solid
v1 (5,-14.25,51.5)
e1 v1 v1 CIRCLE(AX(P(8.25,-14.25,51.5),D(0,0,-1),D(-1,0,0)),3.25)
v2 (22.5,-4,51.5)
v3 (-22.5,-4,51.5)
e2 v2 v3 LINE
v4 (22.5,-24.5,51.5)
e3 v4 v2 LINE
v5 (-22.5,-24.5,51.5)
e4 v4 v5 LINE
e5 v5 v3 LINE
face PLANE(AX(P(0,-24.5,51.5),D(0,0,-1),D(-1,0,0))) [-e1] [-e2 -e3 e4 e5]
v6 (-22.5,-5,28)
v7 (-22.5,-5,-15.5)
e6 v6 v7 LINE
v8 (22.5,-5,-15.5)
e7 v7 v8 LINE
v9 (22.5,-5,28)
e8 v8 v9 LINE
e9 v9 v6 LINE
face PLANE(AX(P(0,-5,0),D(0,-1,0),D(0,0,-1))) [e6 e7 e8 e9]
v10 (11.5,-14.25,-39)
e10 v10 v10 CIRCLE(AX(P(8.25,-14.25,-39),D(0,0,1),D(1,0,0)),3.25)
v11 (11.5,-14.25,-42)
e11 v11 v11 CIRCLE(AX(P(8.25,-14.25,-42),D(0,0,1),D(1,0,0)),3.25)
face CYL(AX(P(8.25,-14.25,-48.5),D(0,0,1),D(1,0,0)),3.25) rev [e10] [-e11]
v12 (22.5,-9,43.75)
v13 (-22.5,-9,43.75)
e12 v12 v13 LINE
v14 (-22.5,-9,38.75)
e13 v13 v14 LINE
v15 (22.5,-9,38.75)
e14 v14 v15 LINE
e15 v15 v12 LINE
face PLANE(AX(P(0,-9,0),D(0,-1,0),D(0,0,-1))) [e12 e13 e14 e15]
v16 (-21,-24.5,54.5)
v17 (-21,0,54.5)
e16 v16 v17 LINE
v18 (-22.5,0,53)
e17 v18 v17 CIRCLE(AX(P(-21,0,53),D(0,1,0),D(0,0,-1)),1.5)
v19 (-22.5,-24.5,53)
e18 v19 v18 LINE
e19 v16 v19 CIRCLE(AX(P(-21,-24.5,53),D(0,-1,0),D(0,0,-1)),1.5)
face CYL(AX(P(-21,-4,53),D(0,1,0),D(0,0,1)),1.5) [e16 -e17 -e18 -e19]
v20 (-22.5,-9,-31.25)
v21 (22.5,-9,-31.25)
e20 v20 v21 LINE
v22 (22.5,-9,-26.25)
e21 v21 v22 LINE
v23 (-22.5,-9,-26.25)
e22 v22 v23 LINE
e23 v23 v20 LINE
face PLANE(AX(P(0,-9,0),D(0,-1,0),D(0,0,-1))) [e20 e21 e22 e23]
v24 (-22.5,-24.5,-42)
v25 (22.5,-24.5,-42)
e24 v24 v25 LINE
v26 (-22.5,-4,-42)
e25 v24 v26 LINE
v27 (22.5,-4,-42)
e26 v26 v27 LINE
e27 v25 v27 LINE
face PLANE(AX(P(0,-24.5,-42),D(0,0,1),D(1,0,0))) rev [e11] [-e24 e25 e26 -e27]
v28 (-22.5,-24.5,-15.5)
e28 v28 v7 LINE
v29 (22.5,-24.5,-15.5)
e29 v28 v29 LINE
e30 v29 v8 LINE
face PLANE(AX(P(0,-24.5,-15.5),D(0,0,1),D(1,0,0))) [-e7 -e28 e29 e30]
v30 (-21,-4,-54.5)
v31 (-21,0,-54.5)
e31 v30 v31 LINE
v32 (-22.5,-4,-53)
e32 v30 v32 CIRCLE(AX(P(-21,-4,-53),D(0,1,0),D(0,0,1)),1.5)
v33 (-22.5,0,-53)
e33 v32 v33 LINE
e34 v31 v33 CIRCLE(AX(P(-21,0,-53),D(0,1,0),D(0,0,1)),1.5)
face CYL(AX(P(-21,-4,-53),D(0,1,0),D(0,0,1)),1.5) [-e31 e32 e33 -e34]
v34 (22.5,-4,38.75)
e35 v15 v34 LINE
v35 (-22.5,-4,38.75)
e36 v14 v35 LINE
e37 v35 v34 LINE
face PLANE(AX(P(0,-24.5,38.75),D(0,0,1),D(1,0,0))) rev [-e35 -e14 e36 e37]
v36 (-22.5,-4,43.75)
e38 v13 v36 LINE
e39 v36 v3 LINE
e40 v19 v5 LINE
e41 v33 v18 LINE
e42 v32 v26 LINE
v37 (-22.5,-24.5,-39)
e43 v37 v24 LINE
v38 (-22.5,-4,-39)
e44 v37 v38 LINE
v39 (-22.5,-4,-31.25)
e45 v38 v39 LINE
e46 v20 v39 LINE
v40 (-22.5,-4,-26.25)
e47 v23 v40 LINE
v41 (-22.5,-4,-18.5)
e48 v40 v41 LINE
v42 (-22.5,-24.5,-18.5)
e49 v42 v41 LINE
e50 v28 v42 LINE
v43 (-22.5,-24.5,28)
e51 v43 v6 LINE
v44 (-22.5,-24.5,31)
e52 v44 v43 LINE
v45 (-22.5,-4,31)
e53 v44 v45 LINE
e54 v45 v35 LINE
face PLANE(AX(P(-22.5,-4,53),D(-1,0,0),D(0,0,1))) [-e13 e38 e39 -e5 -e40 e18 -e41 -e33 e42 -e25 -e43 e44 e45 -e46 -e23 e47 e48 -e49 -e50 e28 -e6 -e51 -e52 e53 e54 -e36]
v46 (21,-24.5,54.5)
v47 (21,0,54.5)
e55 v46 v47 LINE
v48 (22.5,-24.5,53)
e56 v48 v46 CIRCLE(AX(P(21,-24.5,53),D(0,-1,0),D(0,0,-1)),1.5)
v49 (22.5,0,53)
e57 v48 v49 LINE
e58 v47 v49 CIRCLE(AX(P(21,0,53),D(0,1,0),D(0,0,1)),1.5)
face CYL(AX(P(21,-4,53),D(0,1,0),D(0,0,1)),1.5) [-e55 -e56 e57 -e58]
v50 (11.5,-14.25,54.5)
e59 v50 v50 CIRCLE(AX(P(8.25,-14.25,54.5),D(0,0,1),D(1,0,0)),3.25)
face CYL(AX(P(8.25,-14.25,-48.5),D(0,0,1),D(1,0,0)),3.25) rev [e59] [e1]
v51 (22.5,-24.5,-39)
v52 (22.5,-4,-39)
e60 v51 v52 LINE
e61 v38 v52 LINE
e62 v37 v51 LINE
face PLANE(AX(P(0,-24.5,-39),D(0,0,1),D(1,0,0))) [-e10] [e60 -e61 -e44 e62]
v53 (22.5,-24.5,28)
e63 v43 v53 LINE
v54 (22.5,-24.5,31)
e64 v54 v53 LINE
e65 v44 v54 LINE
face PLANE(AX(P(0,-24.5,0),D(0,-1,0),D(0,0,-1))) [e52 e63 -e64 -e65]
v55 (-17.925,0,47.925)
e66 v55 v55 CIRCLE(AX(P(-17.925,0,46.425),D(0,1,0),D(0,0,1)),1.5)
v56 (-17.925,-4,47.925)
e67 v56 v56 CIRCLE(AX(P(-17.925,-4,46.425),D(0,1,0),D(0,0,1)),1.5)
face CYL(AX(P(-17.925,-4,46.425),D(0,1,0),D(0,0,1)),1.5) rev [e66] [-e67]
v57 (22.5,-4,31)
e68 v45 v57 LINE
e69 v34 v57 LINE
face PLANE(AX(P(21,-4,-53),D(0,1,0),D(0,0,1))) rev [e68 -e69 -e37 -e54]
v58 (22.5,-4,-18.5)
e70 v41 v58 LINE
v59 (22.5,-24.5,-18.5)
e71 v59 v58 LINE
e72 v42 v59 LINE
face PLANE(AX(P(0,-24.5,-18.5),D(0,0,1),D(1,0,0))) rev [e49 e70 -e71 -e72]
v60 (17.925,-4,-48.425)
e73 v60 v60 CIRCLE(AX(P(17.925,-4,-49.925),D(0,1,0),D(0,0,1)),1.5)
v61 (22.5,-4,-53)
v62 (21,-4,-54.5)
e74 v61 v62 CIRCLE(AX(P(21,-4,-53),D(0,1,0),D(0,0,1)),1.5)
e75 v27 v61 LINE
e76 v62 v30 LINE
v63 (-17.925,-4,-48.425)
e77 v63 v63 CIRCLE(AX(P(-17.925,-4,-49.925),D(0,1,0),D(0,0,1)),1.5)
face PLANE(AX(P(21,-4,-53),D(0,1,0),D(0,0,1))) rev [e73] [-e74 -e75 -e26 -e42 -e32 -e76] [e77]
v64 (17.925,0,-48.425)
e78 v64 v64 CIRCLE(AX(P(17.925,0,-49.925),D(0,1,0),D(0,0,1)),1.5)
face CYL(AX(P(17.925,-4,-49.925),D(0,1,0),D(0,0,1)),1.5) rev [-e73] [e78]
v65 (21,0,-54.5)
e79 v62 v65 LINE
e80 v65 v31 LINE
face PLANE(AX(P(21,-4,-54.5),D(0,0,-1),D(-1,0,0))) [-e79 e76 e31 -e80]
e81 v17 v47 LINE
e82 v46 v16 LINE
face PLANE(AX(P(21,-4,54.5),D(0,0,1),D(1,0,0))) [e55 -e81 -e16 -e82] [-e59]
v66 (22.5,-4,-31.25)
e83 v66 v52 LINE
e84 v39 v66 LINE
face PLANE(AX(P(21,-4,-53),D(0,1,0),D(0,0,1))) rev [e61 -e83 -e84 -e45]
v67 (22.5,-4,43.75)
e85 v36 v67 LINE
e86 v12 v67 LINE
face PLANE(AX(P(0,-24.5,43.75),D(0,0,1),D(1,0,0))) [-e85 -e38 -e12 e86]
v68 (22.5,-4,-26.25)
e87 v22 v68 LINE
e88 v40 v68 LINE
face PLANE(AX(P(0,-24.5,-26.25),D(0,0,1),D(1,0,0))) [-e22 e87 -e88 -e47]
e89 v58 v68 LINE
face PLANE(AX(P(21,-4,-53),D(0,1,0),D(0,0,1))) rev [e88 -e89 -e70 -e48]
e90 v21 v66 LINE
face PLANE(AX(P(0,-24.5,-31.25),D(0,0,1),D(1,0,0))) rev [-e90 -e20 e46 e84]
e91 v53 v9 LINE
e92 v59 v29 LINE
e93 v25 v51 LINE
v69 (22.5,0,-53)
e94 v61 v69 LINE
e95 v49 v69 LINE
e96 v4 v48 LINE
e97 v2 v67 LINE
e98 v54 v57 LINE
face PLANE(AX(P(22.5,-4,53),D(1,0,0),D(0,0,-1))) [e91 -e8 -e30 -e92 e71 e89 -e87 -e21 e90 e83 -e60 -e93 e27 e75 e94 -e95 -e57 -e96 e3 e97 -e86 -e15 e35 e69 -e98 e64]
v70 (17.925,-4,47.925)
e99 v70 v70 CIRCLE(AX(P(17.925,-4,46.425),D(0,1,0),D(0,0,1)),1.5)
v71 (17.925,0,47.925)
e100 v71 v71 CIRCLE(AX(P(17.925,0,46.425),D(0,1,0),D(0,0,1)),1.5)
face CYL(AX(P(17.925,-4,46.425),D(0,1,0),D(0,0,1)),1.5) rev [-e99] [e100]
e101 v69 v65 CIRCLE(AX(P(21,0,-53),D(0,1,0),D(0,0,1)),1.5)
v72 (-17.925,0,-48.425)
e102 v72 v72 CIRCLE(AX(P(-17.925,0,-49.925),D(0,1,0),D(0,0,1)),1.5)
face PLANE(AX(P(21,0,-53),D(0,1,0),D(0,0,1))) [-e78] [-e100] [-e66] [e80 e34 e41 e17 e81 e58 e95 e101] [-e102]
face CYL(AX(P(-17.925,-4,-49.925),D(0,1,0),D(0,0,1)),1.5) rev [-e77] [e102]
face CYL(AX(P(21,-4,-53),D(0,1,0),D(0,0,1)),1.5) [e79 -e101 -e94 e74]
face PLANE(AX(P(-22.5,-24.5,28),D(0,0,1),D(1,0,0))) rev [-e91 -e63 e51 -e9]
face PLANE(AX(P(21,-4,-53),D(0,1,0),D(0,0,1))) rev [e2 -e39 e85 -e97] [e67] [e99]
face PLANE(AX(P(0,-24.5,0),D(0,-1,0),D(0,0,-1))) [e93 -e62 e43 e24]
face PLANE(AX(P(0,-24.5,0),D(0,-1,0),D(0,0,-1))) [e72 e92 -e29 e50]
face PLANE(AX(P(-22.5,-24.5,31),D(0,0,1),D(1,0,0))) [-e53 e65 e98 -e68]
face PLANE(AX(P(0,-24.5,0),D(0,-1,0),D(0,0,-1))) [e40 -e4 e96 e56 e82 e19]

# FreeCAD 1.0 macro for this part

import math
import FreeCAD as App
import Part
import Sketcher
from FreeCAD import Vector
Q = App.Units.Quantity

doc = App.newDocument("Part")
body = doc.addObject("PartDesign::Body", "Body")

# Sketch on XZ plane
sketch1 = doc.addObject("Sketcher::SketchObject", "Sketch")
body.addObject(sketch1)
sketch1.AttachmentSupport = (doc.XZ_Plane, [""])
sketch1.MapMode = "FlatFace"
sketch1.addGeometry([
    Part.LineSegment(Vector(-21, 54.5, 0), Vector(21, 54.5, 0)),  # 0
    Part.ArcOfCircle(Part.Circle(Vector(21, 53, 0), Vector(0, 0, 1), 1.5), math.radians(0), math.radians(90)),  # 1
    Part.LineSegment(Vector(22.5, 53, 0), Vector(22.5, -53, 0)),  # 2
    Part.ArcOfCircle(Part.Circle(Vector(21, -53, 0), Vector(0, 0, 1), 1.5), math.radians(-90), math.radians(0)),  # 3
    Part.LineSegment(Vector(21, -54.5, 0), Vector(-21, -54.5, 0)),  # 4
    Part.ArcOfCircle(Part.Circle(Vector(-21, -53, 0), Vector(0, 0, 1), 1.5), math.radians(180), math.radians(270)),  # 5
    Part.LineSegment(Vector(-22.5, -53, 0), Vector(-22.5, 53, 0)),  # 6
    Part.ArcOfCircle(Part.Circle(Vector(-21, 53, 0), Vector(0, 0, 1), 1.5), math.radians(90), math.radians(180)),  # 7
    Part.Circle(Vector(17.9, 46.4, 0), Vector(0, 0, 1), 1.5),  # 8
    Part.Circle(Vector(-17.9, 46.4, 0), Vector(0, 0, 1), 1.5),  # 9
    Part.Circle(Vector(17.9, -49.9, 0), Vector(0, 0, 1), 1.5),  # 10
    Part.Circle(Vector(-17.9, -49.9, 0), Vector(0, 0, 1), 1.5),  # 11
], False)
sketch1.addConstraint([
    Sketcher.Constraint("Tangent", 0, 2, 1, 2),
    Sketcher.Constraint("Tangent", 1, 1, 2, 1),
    Sketcher.Constraint("Tangent", 2, 2, 3, 2),
    Sketcher.Constraint("Tangent", 3, 1, 4, 1),
    Sketcher.Constraint("Tangent", 4, 2, 5, 2),
    Sketcher.Constraint("Tangent", 5, 1, 6, 1),
    Sketcher.Constraint("Tangent", 6, 2, 7, 2),
    Sketcher.Constraint("Tangent", 7, 1, 0, 1),
    Sketcher.Constraint("Horizontal", 0),
    Sketcher.Constraint("Vertical", 2),
    Sketcher.Constraint("Horizontal", 4),
    Sketcher.Constraint("Vertical", 6),
    Sketcher.Constraint("Equal", 1, 3),
    Sketcher.Constraint("Equal", 3, 5),
    Sketcher.Constraint("Equal", 5, 7),
    Sketcher.Constraint("Equal", 7, 8),
    Sketcher.Constraint("Equal", 8, 9),
    Sketcher.Constraint("Equal", 9, 10),
    Sketcher.Constraint("Equal", 10, 11),
    Sketcher.Constraint("Symmetric", 1, 3, 5, 3, -1, 1),
    Sketcher.Constraint("Symmetric", 8, 3, 9, 3, -2),
    Sketcher.Constraint("Symmetric", 10, 3, 11, 3, -2),
    Sketcher.Constraint("Vertical", 8, 3, 10, 3),
    Sketcher.Constraint("Diameter", 8, Q("3 mm")),
    Sketcher.Constraint("DistanceX", 0, 1, 0, 2, Q("42 mm")),
    Sketcher.Constraint("DistanceY", 2, 2, 2, 1, Q("106 mm")),
    Sketcher.Constraint("DistanceX", 9, 3, 8, 3, Q("35.85 mm")),
    Sketcher.Constraint("DistanceY", 10, 3, 8, 3, Q("96.35 mm")),
    Sketcher.Constraint("DistanceY", -1, 1, 8, 3, Q("46.425 mm")),
])
pad1 = doc.addObject("PartDesign::Pad", "Pad")
body.addObject(pad1)
pad1.Profile = sketch1
pad1.Length = 4

# Sketch on XZ plane
sketch2 = doc.addObject("Sketcher::SketchObject", "Sketch001")
body.addObject(sketch2)
sketch2.AttachmentSupport = (doc.XZ_Plane, [""])
sketch2.MapMode = "FlatFace"
sketch2.AttachmentOffset = App.Placement(Vector(0, 0, 4), App.Rotation())
sketch2.addGeometry([
    Part.LineSegment(Vector(-22.5, -15.5, 0), Vector(-22.5, -18.5, 0)),  # 0
    Part.LineSegment(Vector(-22.5, -18.5, 0), Vector(22.5, -18.5, 0)),  # 1
    Part.LineSegment(Vector(22.5, -18.5, 0), Vector(22.5, -15.5, 0)),  # 2
    Part.LineSegment(Vector(22.5, -15.5, 0), Vector(-22.5, -15.5, 0)),  # 3
    Part.LineSegment(Vector(-22.5, -26.2, 0), Vector(-22.5, -31.2, 0)),  # 4
    Part.LineSegment(Vector(-22.5, -31.2, 0), Vector(22.5, -31.2, 0)),  # 5
    Part.LineSegment(Vector(22.5, -31.2, 0), Vector(22.5, -26.2, 0)),  # 6
    Part.LineSegment(Vector(22.5, -26.2, 0), Vector(-22.5, -26.2, 0)),  # 7
    Part.LineSegment(Vector(-22.5, -39, 0), Vector(-22.5, -42, 0)),  # 8
    Part.LineSegment(Vector(-22.5, -42, 0), Vector(22.5, -42, 0)),  # 9
    Part.LineSegment(Vector(22.5, -42, 0), Vector(22.5, -39, 0)),  # 10
    Part.LineSegment(Vector(22.5, -39, 0), Vector(-22.5, -39, 0)),  # 11
    Part.LineSegment(Vector(-22.5, 43.8, 0), Vector(-22.5, 38.8, 0)),  # 12
    Part.LineSegment(Vector(-22.5, 38.8, 0), Vector(22.5, 38.8, 0)),  # 13
    Part.LineSegment(Vector(22.5, 38.8, 0), Vector(22.5, 43.8, 0)),  # 14
    Part.LineSegment(Vector(22.5, 43.8, 0), Vector(-22.5, 43.8, 0)),  # 15
    Part.LineSegment(Vector(-22.5, 51.5, 0), Vector(22.5, 51.5, 0)),  # 16
    Part.LineSegment(Vector(22.5, 51.5, 0), Vector(22.5, 53, 0)),  # 17
    Part.ArcOfCircle(Part.Circle(Vector(21, 53, 0), Vector(0, 0, 1), 1.5), math.radians(0), math.radians(90)),  # 18
    Part.LineSegment(Vector(21, 54.5, 0), Vector(-21, 54.5, 0)),  # 19
    Part.ArcOfCircle(Part.Circle(Vector(-21, 53, 0), Vector(0, 0, 1), 1.5), math.radians(90), math.radians(180)),  # 20
    Part.LineSegment(Vector(-22.5, 53, 0), Vector(-22.5, 51.5, 0)),  # 21
    Part.LineSegment(Vector(-22.5, 31, 0), Vector(-22.5, 28, 0)),  # 22
    Part.LineSegment(Vector(-22.5, 28, 0), Vector(22.5, 28, 0)),  # 23
    Part.LineSegment(Vector(22.5, 28, 0), Vector(22.5, 31, 0)),  # 24
    Part.LineSegment(Vector(22.5, 31, 0), Vector(-22.5, 31, 0)),  # 25
], False)
sketch2.addConstraint([
    Sketcher.Constraint("Coincident", 0, 2, 1, 1),
    Sketcher.Constraint("Coincident", 1, 2, 2, 1),
    Sketcher.Constraint("Coincident", 2, 2, 3, 1),
    Sketcher.Constraint("Coincident", 3, 2, 0, 1),
    Sketcher.Constraint("Coincident", 4, 2, 5, 1),
    Sketcher.Constraint("Coincident", 5, 2, 6, 1),
    Sketcher.Constraint("Coincident", 6, 2, 7, 1),
    Sketcher.Constraint("Coincident", 7, 2, 4, 1),
    Sketcher.Constraint("Coincident", 8, 2, 9, 1),
    Sketcher.Constraint("Coincident", 9, 2, 10, 1),
    Sketcher.Constraint("Coincident", 10, 2, 11, 1),
    Sketcher.Constraint("Coincident", 11, 2, 8, 1),
    Sketcher.Constraint("Coincident", 12, 2, 13, 1),
    Sketcher.Constraint("Coincident", 13, 2, 14, 1),
    Sketcher.Constraint("Coincident", 14, 2, 15, 1),
    Sketcher.Constraint("Coincident", 15, 2, 12, 1),
    Sketcher.Constraint("Coincident", 16, 2, 17, 1),
    Sketcher.Constraint("Tangent", 17, 2, 18, 1),
    Sketcher.Constraint("Tangent", 18, 2, 19, 1),
    Sketcher.Constraint("Tangent", 19, 2, 20, 1),
    Sketcher.Constraint("Tangent", 20, 2, 21, 1),
    Sketcher.Constraint("Coincident", 21, 2, 16, 1),
    Sketcher.Constraint("Coincident", 22, 2, 23, 1),
    Sketcher.Constraint("Coincident", 23, 2, 24, 1),
    Sketcher.Constraint("Coincident", 24, 2, 25, 1),
    Sketcher.Constraint("Coincident", 25, 2, 22, 1),
    Sketcher.Constraint("Vertical", 0),
    Sketcher.Constraint("Horizontal", 1),
    Sketcher.Constraint("Vertical", 2),
    Sketcher.Constraint("Horizontal", 3),
    Sketcher.Constraint("Vertical", 4),
    Sketcher.Constraint("Horizontal", 5),
    Sketcher.Constraint("Vertical", 6),
    Sketcher.Constraint("Horizontal", 7),
    Sketcher.Constraint("Vertical", 8),
    Sketcher.Constraint("Horizontal", 9),
    Sketcher.Constraint("Vertical", 10),
    Sketcher.Constraint("Horizontal", 11),
    Sketcher.Constraint("Vertical", 12),
    Sketcher.Constraint("Horizontal", 13),
    Sketcher.Constraint("Vertical", 14),
    Sketcher.Constraint("Horizontal", 15),
    Sketcher.Constraint("Horizontal", 16),
    Sketcher.Constraint("Vertical", 17),
    Sketcher.Constraint("Horizontal", 19),
    Sketcher.Constraint("Vertical", 21),
    Sketcher.Constraint("Vertical", 22),
    Sketcher.Constraint("Horizontal", 23),
    Sketcher.Constraint("Vertical", 24),
    Sketcher.Constraint("Horizontal", 25),
    Sketcher.Constraint("Equal", 18, 20),
    Sketcher.Constraint("Vertical", 3, 2, 4, 2),
    Sketcher.Constraint("Vertical", 2, 2, 5, 2),
    Sketcher.Constraint("Vertical", 7, 2, 8, 2),
    Sketcher.Constraint("Vertical", 6, 2, 9, 2),
    Sketcher.Constraint("Vertical", 11, 2, 12, 2),
    Sketcher.Constraint("Vertical", 10, 2, 13, 2),
    Sketcher.Constraint("Vertical", 14, 2, 16, 2),
    Sketcher.Constraint("Vertical", 15, 2, 20, 2),
    Sketcher.Constraint("Vertical", 21, 2, 22, 2),
    Sketcher.Constraint("Vertical", 17, 2, 23, 2),
    Sketcher.Constraint("Equal", 2, 8),
    Sketcher.Constraint("Equal", 6, 12),
    Sketcher.Constraint("Equal", 10, 22),
    Sketcher.Constraint("Radius", 18, Q("1.5 mm")),
    Sketcher.Constraint("DistanceX", 1, 1, 1, 2, Q("45 mm")),
    Sketcher.Constraint("DistanceY", 0, 2, 0, 1, Q("3 mm")),
    Sketcher.Constraint("DistanceY", 4, 2, 4, 1, Q("5 mm")),
    Sketcher.Constraint("DistanceY", 17, 1, 17, 2, Q("1.5 mm")),
    Sketcher.Constraint("DistanceX", -1, 1, 18, 3, Q("21 mm")),
    Sketcher.Constraint("DistanceY", -1, 1, 18, 3, Q("53 mm")),
    Sketcher.Constraint("DistanceY", 8, 2, -1, 1, Q("42 mm")),
    Sketcher.Constraint("DistanceY", -1, 1, 22, 2, Q("28 mm")),
    Sketcher.Constraint("DistanceY", 7, 2, 12, 2, Q("65 mm")),
    Sketcher.Constraint("DistanceY", 0, 2, -1, 1, Q("18.5 mm")),
    Sketcher.Constraint("DistanceY", 4, 2, -1, 1, Q("31.25 mm")),
])
pad2 = doc.addObject("PartDesign::Pad", "Pad001")
body.addObject(pad2)
pad2.Profile = sketch2
pad2.Length = 20.5

# Sketch on XZ plane
sketch3 = doc.addObject("Sketcher::SketchObject", "Sketch002")
body.addObject(sketch3)
sketch3.AttachmentSupport = (doc.XZ_Plane, [""])
sketch3.MapMode = "FlatFace"
sketch3.AttachmentOffset = App.Placement(Vector(0, 0, 24.5), App.Rotation())
sketch3.addGeometry([
    Part.LineSegment(Vector(-22, 44, 0), Vector(-22, 39, 0)),  # 0
    Part.LineSegment(Vector(-22, 39, 0), Vector(22, 39, 0)),  # 1
    Part.LineSegment(Vector(22, 39, 0), Vector(22, 44, 0)),  # 2
    Part.LineSegment(Vector(22, 44, 0), Vector(-22, 44, 0)),  # 3
    Part.LineSegment(Vector(-22, -26, 0), Vector(-22, -31, 0)),  # 4
    Part.LineSegment(Vector(-22, -31, 0), Vector(22, -31, 0)),  # 5
    Part.LineSegment(Vector(22, -31, 0), Vector(22, -26, 0)),  # 6
    Part.LineSegment(Vector(22, -26, 0), Vector(-22, -26, 0)),  # 7
], False)
sketch3.addConstraint([
    Sketcher.Constraint("Coincident", 0, 2, 1, 1),
    Sketcher.Constraint("Coincident", 1, 2, 2, 1),
    Sketcher.Constraint("Coincident", 2, 2, 3, 1),
    Sketcher.Constraint("Coincident", 3, 2, 0, 1),
    Sketcher.Constraint("Coincident", 4, 2, 5, 1),
    Sketcher.Constraint("Coincident", 5, 2, 6, 1),
    Sketcher.Constraint("Coincident", 6, 2, 7, 1),
    Sketcher.Constraint("Coincident", 7, 2, 4, 1),
    Sketcher.Constraint("Vertical", 0),
    Sketcher.Constraint("Horizontal", 1),
    Sketcher.Constraint("Vertical", 2),
    Sketcher.Constraint("Horizontal", 3),
    Sketcher.Constraint("Vertical", 4),
    Sketcher.Constraint("Horizontal", 5),
    Sketcher.Constraint("Vertical", 6),
    Sketcher.Constraint("Horizontal", 7),
    Sketcher.Constraint("Vertical", 3, 2, 4, 2),
    Sketcher.Constraint("Vertical", 2, 2, 5, 2),
    Sketcher.Constraint("Equal", 2, 4),
    Sketcher.Constraint("DistanceX", 1, 1, 1, 2, Q("45 mm")),
    Sketcher.Constraint("DistanceY", 0, 2, 0, 1, Q("5 mm")),
    Sketcher.Constraint("DistanceY", 4, 2, 0, 2, Q("70 mm")),
    Sketcher.Constraint("DistanceX", 0, 2, -1, 1, Q("22.5 mm")),
    Sketcher.Constraint("DistanceY", -1, 1, 0, 2, Q("38.75 mm")),
])
pocket1 = doc.addObject("PartDesign::Pocket", "Pocket")
body.addObject(pocket1)
pocket1.Profile = sketch3
pocket1.Length = 15.5

# Sketch on XZ plane
sketch4 = doc.addObject("Sketcher::SketchObject", "Sketch003")
body.addObject(sketch4)
sketch4.AttachmentSupport = (doc.XZ_Plane, [""])
sketch4.MapMode = "FlatFace"
sketch4.AttachmentOffset = App.Placement(Vector(0, 0, 4), App.Rotation())
sketch4.addGeometry([
    Part.LineSegment(Vector(-22, 28, 0), Vector(-22, -16, 0)),
    Part.LineSegment(Vector(-22, -16, 0), Vector(22, -16, 0)),
    Part.LineSegment(Vector(22, -16, 0), Vector(22, 28, 0)),
    Part.LineSegment(Vector(22, 28, 0), Vector(-22, 28, 0)),
], False)
sketch4.addConstraint([
    Sketcher.Constraint("Coincident", 0, 2, 1, 1),
    Sketcher.Constraint("Coincident", 1, 2, 2, 1),
    Sketcher.Constraint("Coincident", 2, 2, 3, 1),
    Sketcher.Constraint("Coincident", 3, 2, 0, 1),
    Sketcher.Constraint("Vertical", 0),
    Sketcher.Constraint("Horizontal", 1),
    Sketcher.Constraint("Vertical", 2),
    Sketcher.Constraint("Horizontal", 3),
    Sketcher.Constraint("DistanceX", 1, 1, 1, 2, Q("45 mm")),
    Sketcher.Constraint("DistanceY", 0, 2, 0, 1, Q("43.5 mm")),
    Sketcher.Constraint("DistanceY", -1, 1, 2, 2, Q("28 mm")),
    Sketcher.Constraint("DistanceX", 0, 2, -1, 1, Q("22.5 mm")),
])
pad3 = doc.addObject("PartDesign::Pad", "Pad002")
body.addObject(pad3)
pad3.Profile = sketch4
pad3.Length = 1

# Sketch on XY plane
sketch5 = doc.addObject("Sketcher::SketchObject", "Sketch004")
body.addObject(sketch5)
sketch5.AttachmentSupport = (doc.XY_Plane, [""])
sketch5.MapMode = "FlatFace"
sketch5.AttachmentOffset = App.Placement(Vector(0, 0, 54.5), App.Rotation())
sketch5.addGeometry(Part.Circle(Vector(8.2, -14.2, 0), Vector(0, 0, 1), 3.2), False)
sketch5.addConstraint([
    Sketcher.Constraint("Diameter", 0, Q("6.5 mm")),
    Sketcher.Constraint("DistanceX", -1, 1, 0, 3, Q("8.25 mm")),
    Sketcher.Constraint("DistanceY", 0, 3, -1, 1, Q("14.25 mm")),
])
pocket2 = doc.addObject("PartDesign::Pocket", "Pocket001")
body.addObject(pocket2)
pocket2.Profile = sketch5
pocket2.Length = 103

# Sketch on XZ plane
sketch6 = doc.addObject("Sketcher::SketchObject", "Sketch005")
body.addObject(sketch6)
sketch6.AttachmentSupport = (doc.XZ_Plane, [""])
sketch6.MapMode = "FlatFace"
sketch6.AttachmentOffset = App.Placement(Vector(0, 0, 24.5), App.Rotation())
sketch6.addGeometry([
    Part.LineSegment(Vector(-22.5, 31, 0), Vector(-22.5, 28, 0)),  # 0
    Part.LineSegment(Vector(-22.5, 28, 0), Vector(22.5, 28, 0)),  # 1
    Part.LineSegment(Vector(22.5, 28, 0), Vector(22.5, 31, 0)),  # 2
    Part.LineSegment(Vector(22.5, 31, 0), Vector(-22.5, 31, 0)),  # 3
    Part.LineSegment(Vector(-22.5, -15.5, 0), Vector(-22.5, -18.5, 0)),  # 4
    Part.LineSegment(Vector(-22.5, -18.5, 0), Vector(22.5, -18.5, 0)),  # 5
    Part.LineSegment(Vector(22.5, -18.5, 0), Vector(22.5, -15.5, 0)),  # 6
    Part.LineSegment(Vector(22.5, -15.5, 0), Vector(-22.5, -15.5, 0)),  # 7
], False)
sketch6.addConstraint([
    Sketcher.Constraint("Coincident", 0, 2, 1, 1),
    Sketcher.Constraint("Coincident", 1, 2, 2, 1),
    Sketcher.Constraint("Coincident", 2, 2, 3, 1),
    Sketcher.Constraint("Coincident", 3, 2, 0, 1),
    Sketcher.Constraint("Coincident", 4, 2, 5, 1),
    Sketcher.Constraint("Coincident", 5, 2, 6, 1),
    Sketcher.Constraint("Coincident", 6, 2, 7, 1),
    Sketcher.Constraint("Coincident", 7, 2, 4, 1),
    Sketcher.Constraint("Vertical", 0),
    Sketcher.Constraint("Horizontal", 1),
    Sketcher.Constraint("Vertical", 2),
    Sketcher.Constraint("Horizontal", 3),
    Sketcher.Constraint("Vertical", 4),
    Sketcher.Constraint("Horizontal", 5),
    Sketcher.Constraint("Vertical", 6),
    Sketcher.Constraint("Horizontal", 7),
    Sketcher.Constraint("Vertical", 3, 2, 4, 2),
    Sketcher.Constraint("Vertical", 2, 2, 5, 2),
    Sketcher.Constraint("Equal", 2, 4),
    Sketcher.Constraint("DistanceX", 1, 1, 1, 2, Q("45 mm")),
    Sketcher.Constraint("DistanceY", 0, 2, 0, 1, Q("3 mm")),
    Sketcher.Constraint("DistanceY", -1, 1, 0, 2, Q("28 mm")),
    Sketcher.Constraint("DistanceX", 0, 2, -1, 1, Q("22.5 mm")),
    Sketcher.Constraint("DistanceY", 4, 2, -1, 1, Q("18.5 mm")),
])
pad4 = doc.addObject("PartDesign::Pad", "Pad003")
body.addObject(pad4)
pad4.Profile = sketch6
pad4.Length = 24.5
pad4.Reversed = True

doc.recompute()
